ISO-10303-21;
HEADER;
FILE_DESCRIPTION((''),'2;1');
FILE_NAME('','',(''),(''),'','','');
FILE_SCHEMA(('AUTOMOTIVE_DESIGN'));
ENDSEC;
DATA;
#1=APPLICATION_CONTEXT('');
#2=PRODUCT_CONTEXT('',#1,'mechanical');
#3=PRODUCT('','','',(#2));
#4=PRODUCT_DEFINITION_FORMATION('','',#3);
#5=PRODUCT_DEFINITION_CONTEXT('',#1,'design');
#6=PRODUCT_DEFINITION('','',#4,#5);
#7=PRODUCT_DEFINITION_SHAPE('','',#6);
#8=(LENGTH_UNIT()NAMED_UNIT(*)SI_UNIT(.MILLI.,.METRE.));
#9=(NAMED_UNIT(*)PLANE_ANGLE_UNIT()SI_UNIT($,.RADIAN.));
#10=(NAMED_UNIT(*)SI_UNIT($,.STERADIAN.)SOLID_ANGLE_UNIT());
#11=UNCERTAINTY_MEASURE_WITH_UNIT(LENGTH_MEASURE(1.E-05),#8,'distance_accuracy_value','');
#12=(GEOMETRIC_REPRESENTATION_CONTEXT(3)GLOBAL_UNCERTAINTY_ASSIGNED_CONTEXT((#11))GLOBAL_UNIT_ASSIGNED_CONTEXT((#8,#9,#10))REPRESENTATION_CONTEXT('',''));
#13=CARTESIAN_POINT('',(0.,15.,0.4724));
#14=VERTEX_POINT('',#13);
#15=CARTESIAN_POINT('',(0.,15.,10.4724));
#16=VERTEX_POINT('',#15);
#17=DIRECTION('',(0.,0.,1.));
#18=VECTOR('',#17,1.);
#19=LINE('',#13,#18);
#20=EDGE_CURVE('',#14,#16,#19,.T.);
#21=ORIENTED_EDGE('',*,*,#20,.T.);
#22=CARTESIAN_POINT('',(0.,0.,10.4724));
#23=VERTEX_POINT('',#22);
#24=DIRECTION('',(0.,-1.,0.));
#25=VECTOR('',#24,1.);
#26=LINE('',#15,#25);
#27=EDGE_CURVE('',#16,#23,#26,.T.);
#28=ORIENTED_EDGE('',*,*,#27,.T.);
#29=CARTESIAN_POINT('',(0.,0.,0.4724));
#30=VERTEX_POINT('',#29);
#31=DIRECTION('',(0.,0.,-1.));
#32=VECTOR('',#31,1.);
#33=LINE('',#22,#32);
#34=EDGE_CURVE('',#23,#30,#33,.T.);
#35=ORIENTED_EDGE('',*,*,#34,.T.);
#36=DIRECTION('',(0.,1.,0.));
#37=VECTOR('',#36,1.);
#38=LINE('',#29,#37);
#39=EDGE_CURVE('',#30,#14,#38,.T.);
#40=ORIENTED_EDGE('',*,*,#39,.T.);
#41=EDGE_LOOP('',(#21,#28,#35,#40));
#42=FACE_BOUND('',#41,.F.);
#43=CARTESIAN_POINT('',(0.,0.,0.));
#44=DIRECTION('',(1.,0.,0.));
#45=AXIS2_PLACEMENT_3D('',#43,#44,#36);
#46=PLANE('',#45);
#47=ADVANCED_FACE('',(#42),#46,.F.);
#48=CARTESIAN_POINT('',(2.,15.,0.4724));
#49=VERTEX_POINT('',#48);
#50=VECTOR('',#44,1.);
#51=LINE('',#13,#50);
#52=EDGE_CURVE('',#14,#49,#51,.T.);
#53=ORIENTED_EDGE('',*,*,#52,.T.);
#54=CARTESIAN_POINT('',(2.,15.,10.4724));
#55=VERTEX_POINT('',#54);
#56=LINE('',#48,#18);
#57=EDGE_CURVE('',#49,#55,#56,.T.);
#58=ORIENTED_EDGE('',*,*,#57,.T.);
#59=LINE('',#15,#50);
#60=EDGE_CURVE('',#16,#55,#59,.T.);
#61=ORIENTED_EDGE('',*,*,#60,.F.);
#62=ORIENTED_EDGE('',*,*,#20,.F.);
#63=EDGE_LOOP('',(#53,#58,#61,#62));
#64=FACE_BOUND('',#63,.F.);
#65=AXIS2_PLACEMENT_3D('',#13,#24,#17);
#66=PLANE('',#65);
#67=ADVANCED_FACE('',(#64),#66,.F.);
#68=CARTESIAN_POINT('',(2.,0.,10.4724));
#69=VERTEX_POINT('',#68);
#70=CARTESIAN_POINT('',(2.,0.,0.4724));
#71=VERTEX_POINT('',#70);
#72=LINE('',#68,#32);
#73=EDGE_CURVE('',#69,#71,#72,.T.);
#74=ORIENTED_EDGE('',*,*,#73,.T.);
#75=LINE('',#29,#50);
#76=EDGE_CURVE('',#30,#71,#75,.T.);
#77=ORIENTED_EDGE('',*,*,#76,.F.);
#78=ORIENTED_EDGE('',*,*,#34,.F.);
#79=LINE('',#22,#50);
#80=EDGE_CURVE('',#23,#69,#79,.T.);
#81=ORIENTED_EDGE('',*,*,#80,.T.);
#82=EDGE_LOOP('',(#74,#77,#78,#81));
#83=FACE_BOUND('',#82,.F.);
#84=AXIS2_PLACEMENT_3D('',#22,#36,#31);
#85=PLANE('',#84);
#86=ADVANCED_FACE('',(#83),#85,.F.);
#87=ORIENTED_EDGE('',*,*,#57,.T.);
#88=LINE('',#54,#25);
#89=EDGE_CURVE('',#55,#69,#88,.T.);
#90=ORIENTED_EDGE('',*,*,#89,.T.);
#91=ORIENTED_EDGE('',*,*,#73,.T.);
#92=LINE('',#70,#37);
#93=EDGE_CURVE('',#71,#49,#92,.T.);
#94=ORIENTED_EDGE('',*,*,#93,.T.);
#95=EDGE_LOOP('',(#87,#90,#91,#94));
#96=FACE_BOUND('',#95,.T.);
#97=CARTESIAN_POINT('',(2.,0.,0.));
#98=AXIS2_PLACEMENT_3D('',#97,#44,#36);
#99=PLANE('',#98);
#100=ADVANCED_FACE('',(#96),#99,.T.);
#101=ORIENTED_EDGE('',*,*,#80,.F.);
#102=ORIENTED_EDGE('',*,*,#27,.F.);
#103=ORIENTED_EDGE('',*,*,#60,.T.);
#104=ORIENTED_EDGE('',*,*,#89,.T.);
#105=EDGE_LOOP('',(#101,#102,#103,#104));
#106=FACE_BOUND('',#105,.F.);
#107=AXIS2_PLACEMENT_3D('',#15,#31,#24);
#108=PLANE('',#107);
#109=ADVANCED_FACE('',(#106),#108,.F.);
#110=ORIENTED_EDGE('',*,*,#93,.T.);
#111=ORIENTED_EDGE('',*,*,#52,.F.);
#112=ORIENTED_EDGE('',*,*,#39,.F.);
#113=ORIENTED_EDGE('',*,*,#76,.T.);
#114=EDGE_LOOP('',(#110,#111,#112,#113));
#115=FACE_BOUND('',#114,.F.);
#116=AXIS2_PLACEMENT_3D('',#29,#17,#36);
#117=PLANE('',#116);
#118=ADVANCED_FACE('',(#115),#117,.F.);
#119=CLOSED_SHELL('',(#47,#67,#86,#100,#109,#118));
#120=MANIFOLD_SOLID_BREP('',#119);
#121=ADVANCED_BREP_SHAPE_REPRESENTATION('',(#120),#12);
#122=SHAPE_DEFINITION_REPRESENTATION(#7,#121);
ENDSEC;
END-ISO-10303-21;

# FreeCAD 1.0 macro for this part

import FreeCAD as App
import Part
import Sketcher
Q = App.Units.Quantity


def add_polygon(sketch, points):
    """Adds a closed chain of lines whose ends are joined by coincident constraints."""
    first, n = sketch.GeometryCount, len(points)
    for a, b in zip(points, points[1:] + points[:1]):
        sketch.addGeometry(Part.LineSegment(App.Vector(*a, 0), App.Vector(*b, 0)), False)
    for i in range(n):
        sketch.addConstraint(Sketcher.Constraint("Coincident", first + i, 2, first + (i + 1) % n, 1))

doc = App.newDocument("Part")
body = doc.addObject("PartDesign::Body", "Body")

# Sketch on YZ plane
sketch1 = body.newObject("Sketcher::SketchObject", "Sketch")
sketch1.AttachmentSupport = (doc.getObject("YZ_Plane"), [""])
sketch1.MapMode = "FlatFace"
add_polygon(sketch1, [(15, 0.4724), (15, 10.4724), (0, 10.4724), (0, 0.4724)])  # lines 0-3
sketch1.addConstraint(Sketcher.Constraint("Vertical", 0))
sketch1.addConstraint(Sketcher.Constraint("Horizontal", 1))
sketch1.addConstraint(Sketcher.Constraint("Vertical", 2))
sketch1.addConstraint(Sketcher.Constraint("Horizontal", 3))
sketch1.addConstraint(Sketcher.Constraint("PointOnObject", 1, 2, -2))
sketch1.addConstraint(Sketcher.Constraint("DistanceX", 1, 2, 1, 1, Q("15 mm")))
sketch1.addConstraint(Sketcher.Constraint("DistanceY", 0, 1, 0, 2, Q("10 mm")))
sketch1.addConstraint(Sketcher.Constraint("DistanceY", -1, 1, 0, 2, Q("10.4724 mm")))
pad1 = body.newObject("PartDesign::Pad", "Pad")
pad1.Profile = sketch1
pad1.Length = 2

doc.recompute()
